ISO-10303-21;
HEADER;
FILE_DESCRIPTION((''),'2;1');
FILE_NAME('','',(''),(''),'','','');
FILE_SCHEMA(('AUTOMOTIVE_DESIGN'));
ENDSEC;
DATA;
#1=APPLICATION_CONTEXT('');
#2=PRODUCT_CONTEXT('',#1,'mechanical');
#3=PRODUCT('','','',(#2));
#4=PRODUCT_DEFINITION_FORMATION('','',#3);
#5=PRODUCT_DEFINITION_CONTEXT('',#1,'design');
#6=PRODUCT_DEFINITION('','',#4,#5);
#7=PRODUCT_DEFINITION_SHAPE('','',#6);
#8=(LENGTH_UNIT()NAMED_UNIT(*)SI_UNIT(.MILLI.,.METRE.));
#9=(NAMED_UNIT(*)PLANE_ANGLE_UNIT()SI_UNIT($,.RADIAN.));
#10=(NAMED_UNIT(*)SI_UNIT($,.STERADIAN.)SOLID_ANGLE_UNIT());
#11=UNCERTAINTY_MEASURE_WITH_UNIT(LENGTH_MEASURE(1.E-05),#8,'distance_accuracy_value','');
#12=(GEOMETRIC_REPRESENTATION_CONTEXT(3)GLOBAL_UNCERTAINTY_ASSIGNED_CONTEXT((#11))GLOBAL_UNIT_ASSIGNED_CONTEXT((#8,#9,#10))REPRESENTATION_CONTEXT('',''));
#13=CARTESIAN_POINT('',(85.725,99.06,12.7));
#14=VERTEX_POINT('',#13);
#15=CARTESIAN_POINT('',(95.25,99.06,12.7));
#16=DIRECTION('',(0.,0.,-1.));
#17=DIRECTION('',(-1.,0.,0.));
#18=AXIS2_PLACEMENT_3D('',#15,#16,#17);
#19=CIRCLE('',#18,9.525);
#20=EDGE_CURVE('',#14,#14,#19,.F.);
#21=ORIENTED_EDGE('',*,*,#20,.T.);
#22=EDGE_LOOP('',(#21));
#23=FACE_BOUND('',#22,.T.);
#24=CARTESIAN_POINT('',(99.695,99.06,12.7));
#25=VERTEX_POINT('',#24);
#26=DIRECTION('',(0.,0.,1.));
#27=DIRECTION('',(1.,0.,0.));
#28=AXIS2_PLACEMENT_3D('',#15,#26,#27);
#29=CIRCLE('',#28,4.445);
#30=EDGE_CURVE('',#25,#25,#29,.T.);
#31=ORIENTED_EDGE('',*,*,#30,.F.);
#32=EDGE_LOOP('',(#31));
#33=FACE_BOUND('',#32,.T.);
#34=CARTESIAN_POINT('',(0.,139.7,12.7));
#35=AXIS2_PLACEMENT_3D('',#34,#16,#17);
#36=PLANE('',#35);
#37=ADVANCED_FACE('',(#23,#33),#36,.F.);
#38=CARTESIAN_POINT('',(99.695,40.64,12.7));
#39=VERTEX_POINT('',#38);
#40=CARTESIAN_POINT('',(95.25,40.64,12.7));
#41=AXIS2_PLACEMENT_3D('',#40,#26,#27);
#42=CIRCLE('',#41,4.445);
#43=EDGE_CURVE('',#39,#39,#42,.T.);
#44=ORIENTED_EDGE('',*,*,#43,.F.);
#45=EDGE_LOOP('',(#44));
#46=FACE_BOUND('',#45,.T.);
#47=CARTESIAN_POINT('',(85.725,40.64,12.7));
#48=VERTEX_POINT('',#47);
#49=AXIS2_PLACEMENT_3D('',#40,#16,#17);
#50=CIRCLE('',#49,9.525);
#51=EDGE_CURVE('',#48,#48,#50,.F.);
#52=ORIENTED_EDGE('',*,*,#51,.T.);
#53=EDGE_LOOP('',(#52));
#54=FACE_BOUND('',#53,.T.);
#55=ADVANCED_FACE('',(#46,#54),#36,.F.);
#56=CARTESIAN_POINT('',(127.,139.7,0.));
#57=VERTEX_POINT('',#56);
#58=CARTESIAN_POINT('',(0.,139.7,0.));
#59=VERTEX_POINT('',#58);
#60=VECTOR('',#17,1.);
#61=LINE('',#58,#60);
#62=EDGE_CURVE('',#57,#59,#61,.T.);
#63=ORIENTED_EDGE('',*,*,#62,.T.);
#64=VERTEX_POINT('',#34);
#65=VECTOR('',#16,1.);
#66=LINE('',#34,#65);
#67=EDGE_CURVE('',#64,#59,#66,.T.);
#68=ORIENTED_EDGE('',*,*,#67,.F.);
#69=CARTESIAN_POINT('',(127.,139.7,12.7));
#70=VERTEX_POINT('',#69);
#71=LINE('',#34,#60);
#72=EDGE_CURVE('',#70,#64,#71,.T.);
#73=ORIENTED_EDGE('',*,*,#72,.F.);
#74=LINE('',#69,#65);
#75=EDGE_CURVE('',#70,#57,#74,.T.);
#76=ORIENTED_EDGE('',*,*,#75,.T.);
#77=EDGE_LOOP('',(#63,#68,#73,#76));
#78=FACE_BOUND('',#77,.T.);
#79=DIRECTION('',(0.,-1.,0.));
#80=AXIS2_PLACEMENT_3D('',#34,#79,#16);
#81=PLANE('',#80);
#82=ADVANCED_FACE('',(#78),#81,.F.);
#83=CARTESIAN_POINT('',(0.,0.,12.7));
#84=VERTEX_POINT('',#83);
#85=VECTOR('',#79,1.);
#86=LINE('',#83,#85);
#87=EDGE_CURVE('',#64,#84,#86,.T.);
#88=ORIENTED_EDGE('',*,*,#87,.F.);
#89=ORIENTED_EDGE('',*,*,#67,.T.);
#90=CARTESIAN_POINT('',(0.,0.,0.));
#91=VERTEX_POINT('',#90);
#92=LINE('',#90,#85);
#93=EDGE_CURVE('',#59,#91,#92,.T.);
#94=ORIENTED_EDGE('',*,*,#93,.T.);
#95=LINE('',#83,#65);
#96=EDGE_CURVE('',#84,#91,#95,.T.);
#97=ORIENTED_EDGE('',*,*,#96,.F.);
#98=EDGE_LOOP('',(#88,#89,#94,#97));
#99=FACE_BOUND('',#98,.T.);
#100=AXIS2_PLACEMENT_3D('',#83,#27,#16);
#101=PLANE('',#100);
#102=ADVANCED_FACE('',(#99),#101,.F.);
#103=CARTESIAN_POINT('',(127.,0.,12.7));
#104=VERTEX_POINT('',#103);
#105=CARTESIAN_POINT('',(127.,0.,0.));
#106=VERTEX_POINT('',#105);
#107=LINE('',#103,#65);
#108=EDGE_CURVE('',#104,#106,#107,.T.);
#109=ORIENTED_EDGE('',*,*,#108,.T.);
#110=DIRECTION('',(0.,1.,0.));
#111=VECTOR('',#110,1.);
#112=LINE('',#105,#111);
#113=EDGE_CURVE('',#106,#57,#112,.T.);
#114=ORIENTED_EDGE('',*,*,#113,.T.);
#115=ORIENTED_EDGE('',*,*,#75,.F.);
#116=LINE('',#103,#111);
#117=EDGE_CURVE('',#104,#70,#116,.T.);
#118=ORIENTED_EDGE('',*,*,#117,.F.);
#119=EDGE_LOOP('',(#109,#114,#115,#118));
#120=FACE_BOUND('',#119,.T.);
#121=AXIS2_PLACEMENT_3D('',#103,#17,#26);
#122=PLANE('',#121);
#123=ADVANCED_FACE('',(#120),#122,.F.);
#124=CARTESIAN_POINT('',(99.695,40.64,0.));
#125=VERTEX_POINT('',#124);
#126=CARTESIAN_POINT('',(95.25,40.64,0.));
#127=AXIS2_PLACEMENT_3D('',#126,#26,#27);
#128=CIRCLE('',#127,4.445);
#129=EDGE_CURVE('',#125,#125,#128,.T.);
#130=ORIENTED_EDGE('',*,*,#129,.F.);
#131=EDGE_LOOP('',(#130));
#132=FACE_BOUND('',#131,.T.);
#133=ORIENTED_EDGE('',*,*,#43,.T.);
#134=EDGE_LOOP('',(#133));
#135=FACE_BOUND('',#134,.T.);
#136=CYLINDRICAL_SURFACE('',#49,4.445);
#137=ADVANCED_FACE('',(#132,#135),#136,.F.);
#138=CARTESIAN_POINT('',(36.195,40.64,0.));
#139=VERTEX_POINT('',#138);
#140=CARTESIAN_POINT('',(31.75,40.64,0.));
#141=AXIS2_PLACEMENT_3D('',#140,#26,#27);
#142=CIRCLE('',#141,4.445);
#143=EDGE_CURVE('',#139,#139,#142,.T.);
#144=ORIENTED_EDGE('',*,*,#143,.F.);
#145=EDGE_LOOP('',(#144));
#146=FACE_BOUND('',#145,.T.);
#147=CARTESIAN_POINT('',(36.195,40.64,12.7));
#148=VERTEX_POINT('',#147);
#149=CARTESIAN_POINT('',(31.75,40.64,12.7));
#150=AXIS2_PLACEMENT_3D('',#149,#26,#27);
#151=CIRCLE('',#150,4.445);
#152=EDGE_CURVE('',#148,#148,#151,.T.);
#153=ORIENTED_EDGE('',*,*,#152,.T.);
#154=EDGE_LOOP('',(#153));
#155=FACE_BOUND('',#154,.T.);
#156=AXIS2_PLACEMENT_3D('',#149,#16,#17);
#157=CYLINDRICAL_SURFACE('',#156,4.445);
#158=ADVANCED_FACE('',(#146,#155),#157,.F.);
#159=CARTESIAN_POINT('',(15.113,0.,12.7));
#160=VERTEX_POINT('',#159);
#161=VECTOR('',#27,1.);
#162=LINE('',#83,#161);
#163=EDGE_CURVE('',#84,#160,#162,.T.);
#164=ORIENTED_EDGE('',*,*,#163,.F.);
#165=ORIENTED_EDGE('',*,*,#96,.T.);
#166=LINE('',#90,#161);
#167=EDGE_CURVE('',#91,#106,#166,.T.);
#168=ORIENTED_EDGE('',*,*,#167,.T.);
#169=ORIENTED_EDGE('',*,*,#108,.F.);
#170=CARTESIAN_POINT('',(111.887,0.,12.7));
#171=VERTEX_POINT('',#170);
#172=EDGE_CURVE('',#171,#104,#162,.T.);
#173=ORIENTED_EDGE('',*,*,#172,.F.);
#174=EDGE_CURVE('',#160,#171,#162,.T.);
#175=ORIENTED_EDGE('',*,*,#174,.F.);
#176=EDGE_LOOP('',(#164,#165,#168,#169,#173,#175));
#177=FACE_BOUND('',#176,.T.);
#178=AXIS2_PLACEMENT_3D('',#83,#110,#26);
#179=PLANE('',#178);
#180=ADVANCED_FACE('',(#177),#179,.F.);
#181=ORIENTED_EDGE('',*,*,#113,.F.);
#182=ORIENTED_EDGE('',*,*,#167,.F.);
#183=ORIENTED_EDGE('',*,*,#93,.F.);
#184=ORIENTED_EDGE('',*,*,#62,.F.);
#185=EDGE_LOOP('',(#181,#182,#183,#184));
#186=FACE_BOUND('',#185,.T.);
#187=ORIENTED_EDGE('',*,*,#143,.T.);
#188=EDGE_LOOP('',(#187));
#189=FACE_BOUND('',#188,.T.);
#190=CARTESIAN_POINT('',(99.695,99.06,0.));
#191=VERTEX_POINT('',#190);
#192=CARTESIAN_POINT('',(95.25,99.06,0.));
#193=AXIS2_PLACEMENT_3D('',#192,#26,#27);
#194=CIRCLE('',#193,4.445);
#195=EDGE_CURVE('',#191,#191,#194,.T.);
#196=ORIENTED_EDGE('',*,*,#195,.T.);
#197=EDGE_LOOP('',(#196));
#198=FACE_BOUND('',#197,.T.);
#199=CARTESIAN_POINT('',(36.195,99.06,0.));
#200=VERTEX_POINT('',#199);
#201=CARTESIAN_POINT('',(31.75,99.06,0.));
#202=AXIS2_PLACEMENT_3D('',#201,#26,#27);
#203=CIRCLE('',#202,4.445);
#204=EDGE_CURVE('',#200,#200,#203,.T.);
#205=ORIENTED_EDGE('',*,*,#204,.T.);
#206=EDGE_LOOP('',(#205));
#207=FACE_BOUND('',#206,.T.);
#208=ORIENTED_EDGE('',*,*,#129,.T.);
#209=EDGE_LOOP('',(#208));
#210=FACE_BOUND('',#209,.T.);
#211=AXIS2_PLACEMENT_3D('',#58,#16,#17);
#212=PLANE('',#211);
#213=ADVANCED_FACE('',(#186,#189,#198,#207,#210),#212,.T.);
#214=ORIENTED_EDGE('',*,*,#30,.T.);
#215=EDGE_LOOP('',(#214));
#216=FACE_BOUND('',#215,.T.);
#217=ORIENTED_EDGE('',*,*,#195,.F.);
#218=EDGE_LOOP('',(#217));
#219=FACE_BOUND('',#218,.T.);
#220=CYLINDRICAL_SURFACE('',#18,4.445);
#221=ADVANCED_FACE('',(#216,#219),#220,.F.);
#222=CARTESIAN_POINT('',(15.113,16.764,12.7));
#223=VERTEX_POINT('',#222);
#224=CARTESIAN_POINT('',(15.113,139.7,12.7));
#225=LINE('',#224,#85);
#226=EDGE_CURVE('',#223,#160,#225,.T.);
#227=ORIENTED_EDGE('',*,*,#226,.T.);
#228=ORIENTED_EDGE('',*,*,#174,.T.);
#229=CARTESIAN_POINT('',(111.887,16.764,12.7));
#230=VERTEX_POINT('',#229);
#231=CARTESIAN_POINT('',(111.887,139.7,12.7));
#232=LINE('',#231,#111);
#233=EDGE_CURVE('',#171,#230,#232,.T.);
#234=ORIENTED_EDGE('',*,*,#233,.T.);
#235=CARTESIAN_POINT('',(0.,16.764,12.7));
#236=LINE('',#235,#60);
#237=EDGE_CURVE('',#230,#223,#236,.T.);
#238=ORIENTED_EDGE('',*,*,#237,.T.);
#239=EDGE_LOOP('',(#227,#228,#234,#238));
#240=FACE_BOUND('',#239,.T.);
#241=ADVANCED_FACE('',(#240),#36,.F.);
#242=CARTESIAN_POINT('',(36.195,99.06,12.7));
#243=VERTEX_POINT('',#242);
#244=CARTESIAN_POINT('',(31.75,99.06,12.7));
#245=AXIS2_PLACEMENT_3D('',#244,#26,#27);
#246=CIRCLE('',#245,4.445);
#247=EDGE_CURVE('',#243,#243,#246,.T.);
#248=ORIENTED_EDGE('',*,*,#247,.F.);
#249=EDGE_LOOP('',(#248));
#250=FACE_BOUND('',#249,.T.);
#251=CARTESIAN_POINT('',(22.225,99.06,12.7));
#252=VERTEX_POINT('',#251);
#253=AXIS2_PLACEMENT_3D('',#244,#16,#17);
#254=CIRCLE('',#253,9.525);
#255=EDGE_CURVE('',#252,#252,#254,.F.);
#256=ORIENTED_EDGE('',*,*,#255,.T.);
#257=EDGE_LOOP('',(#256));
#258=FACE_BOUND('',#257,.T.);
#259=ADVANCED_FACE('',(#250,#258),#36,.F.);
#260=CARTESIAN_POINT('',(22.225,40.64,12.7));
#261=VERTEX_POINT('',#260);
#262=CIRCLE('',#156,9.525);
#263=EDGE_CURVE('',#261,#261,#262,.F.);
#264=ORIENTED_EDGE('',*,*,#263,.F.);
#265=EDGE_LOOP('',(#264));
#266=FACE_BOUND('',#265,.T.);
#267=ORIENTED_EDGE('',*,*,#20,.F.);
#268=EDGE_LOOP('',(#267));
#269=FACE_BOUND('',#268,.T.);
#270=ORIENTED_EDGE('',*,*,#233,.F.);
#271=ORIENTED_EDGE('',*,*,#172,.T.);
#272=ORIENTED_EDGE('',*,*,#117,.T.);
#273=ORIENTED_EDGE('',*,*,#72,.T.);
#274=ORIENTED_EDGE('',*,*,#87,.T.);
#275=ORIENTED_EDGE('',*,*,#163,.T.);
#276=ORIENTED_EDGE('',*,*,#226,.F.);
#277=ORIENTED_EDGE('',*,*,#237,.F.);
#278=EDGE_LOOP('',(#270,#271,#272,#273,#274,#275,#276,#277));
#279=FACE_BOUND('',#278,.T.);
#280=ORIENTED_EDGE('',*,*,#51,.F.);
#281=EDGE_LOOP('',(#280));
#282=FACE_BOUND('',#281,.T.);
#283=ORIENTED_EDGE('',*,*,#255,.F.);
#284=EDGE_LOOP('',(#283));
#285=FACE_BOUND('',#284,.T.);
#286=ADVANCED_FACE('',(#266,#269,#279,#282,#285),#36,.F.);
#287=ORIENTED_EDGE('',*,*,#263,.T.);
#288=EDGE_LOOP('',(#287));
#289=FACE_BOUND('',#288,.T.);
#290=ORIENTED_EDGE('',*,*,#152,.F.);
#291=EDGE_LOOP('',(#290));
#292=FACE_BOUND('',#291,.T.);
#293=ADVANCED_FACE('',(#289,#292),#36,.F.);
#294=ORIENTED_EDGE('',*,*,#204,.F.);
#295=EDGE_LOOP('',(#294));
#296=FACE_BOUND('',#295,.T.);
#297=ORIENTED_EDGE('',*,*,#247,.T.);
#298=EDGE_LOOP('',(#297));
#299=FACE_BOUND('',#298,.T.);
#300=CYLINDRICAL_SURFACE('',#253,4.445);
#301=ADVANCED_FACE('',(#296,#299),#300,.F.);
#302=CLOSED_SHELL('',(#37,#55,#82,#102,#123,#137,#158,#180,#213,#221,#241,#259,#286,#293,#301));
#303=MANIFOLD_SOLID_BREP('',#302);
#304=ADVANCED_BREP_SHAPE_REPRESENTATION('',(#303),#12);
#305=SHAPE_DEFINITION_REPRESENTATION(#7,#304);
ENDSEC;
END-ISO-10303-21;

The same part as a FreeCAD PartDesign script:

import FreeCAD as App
import Part
import Sketcher

V = App.Vector
Q = App.Units.Quantity

doc = App.newDocument("Part")
body = doc.addObject("PartDesign::Body", "Body")

sketch1 = body.newObject("Sketcher::SketchObject", "Sketch")
sketch1.AttachmentSupport = (doc.getObject("XY_Plane"), [""])
sketch1.MapMode = "FlatFace"
sketch1.addGeometry(Part.LineSegment(V(0, 139.7, 0), V(0, 0, 0)), False)
sketch1.addGeometry(Part.LineSegment(V(0, 0, 0), V(127, 0, 0)), False)
sketch1.addGeometry(Part.LineSegment(V(127, 0, 0), V(127, 139.7, 0)), False)
sketch1.addGeometry(Part.LineSegment(V(127, 139.7, 0), V(0, 139.7, 0)), False)
sketch1.addGeometry(Part.Circle(V(31.75, 40.64, 0), V(0, 0, 1), 4.445), False)
sketch1.addGeometry(Part.Circle(V(95.25, 40.64, 0), V(0, 0, 1), 4.445), False)
sketch1.addGeometry(Part.Circle(V(31.75, 99.06, 0), V(0, 0, 1), 4.445), False)
sketch1.addGeometry(Part.Circle(V(95.25, 99.06, 0), V(0, 0, 1), 4.445), False)
sketch1.addConstraint(Sketcher.Constraint("Coincident", 0, 2, 1, 1))
sketch1.addConstraint(Sketcher.Constraint("Coincident", 1, 2, 2, 1))
sketch1.addConstraint(Sketcher.Constraint("Coincident", 2, 2, 3, 1))
sketch1.addConstraint(Sketcher.Constraint("Coincident", 3, 2, 0, 1))
sketch1.addConstraint(Sketcher.Constraint("Vertical", 0))
sketch1.addConstraint(Sketcher.Constraint("Horizontal", 1))
sketch1.addConstraint(Sketcher.Constraint("Vertical", 2))
sketch1.addConstraint(Sketcher.Constraint("Horizontal", 3))
sketch1.addConstraint(Sketcher.Constraint("Coincident", 0, 2, -1, 1))
sketch1.addConstraint(Sketcher.Constraint("Equal", 4, 5))
sketch1.addConstraint(Sketcher.Constraint("Equal", 5, 6))
sketch1.addConstraint(Sketcher.Constraint("Equal", 6, 7))
sketch1.addConstraint(Sketcher.Constraint("Horizontal", 4, 3, 5, 3))
sketch1.addConstraint(Sketcher.Constraint("Horizontal", 6, 3, 7, 3))
sketch1.addConstraint(Sketcher.Constraint("Vertical", 4, 3, 6, 3))
sketch1.addConstraint(Sketcher.Constraint("Vertical", 5, 3, 7, 3))
sketch1.addConstraint(Sketcher.Constraint("Diameter", 4, Q("0.35 in")))
sketch1.addConstraint(Sketcher.Constraint("DistanceX", 1, 1, 1, 2, Q("5 in")))
sketch1.addConstraint(Sketcher.Constraint("DistanceY", 0, 2, 0, 1, Q("5.5 in")))
sketch1.addConstraint(Sketcher.Constraint("DistanceY", -1, 1, 4, 3, Q("1.6 in")))
sketch1.addConstraint(Sketcher.Constraint("DistanceY", -1, 1, 6, 3, Q("3.9 in")))
sketch1.addConstraint(Sketcher.Constraint("DistanceX", 4, 3, 5, 3, Q("2.5 in")))
sketch1.addConstraint(Sketcher.Constraint("DistanceX", -1, 1, 4, 3, Q("1.25 in")))
pad1 = body.newObject("PartDesign::Pad", "Pad")
pad1.Profile = sketch1
pad1.Length = Q("0.5 in")

doc.recompute()
